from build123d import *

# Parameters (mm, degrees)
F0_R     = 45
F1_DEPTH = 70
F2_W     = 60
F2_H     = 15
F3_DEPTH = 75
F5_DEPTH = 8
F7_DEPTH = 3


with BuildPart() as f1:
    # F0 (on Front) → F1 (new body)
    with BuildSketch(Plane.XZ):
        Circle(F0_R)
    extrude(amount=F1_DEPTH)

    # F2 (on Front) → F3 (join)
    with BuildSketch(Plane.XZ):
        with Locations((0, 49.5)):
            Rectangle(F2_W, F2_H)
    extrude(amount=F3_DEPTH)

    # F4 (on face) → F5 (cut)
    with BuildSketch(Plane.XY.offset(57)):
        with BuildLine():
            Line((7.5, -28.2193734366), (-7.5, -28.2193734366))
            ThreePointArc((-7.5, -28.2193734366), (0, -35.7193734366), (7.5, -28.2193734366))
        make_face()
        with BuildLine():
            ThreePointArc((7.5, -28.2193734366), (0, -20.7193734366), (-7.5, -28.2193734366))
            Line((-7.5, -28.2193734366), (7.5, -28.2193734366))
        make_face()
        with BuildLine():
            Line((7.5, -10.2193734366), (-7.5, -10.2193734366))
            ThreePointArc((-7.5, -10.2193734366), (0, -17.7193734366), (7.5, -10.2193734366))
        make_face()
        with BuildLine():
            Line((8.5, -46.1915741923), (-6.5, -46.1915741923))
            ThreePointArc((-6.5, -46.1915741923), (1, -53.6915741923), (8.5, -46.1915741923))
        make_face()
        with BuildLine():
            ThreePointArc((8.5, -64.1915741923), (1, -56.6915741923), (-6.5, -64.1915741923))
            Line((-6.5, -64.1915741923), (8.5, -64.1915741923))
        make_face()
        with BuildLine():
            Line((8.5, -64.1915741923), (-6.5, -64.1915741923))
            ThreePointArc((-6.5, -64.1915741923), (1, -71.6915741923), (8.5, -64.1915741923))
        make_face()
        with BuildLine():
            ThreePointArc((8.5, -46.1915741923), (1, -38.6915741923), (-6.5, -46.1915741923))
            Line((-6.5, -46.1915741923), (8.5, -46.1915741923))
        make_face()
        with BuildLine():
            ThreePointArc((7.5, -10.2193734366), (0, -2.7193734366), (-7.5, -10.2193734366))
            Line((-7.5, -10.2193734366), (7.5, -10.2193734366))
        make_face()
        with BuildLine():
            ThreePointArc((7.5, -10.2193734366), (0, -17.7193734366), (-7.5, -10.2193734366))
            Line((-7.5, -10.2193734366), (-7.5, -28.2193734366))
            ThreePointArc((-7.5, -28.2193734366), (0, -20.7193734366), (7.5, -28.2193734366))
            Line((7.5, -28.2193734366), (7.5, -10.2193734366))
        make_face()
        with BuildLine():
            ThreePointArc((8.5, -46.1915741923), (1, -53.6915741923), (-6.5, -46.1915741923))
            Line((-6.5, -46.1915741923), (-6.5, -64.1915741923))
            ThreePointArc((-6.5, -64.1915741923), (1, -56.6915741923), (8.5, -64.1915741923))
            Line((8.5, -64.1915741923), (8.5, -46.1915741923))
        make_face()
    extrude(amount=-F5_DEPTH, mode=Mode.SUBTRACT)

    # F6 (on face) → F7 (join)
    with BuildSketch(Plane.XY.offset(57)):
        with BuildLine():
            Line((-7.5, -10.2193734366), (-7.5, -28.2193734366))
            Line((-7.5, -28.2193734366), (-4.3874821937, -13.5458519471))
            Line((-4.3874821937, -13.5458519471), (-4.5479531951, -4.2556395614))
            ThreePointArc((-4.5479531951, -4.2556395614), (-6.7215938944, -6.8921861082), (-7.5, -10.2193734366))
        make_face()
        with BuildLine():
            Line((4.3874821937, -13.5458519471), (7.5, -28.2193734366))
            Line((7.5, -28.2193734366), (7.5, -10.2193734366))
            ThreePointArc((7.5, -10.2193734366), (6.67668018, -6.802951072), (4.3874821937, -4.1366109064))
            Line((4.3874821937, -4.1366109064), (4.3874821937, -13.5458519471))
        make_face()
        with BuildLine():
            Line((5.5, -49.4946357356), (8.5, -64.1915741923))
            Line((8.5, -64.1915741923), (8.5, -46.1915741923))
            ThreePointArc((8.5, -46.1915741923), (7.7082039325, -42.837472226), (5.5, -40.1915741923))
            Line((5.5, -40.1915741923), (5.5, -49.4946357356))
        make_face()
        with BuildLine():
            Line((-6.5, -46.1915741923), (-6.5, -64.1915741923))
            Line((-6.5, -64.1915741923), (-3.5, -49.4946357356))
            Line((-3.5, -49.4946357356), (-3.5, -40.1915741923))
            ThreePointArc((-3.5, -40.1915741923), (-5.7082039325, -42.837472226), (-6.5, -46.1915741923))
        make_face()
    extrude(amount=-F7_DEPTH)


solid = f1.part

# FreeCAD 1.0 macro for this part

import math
import FreeCAD as App
import Part
import Sketcher


def add_polygon(sketch, points):
    """Adds a closed chain of lines whose ends are joined by coincident constraints."""
    first, n = sketch.GeometryCount, len(points)
    for a, b in zip(points, points[1:] + points[:1]):
        sketch.addGeometry(Part.LineSegment(App.Vector(*a, 0), App.Vector(*b, 0)), False)
    for i in range(n):
        sketch.addConstraint(Sketcher.Constraint("Coincident", first + i, 2, first + (i + 1) % n, 1))

doc = App.newDocument("Part")
body = doc.addObject("PartDesign::Body", "Body")

# Sketch on XZ plane
sketch1 = doc.addObject("Sketcher::SketchObject", "Sketch")
body.addObject(sketch1)
sketch1.AttachmentSupport = (doc.XZ_Plane, [""])
sketch1.MapMode = "FlatFace"
sketch1.addGeometry(Part.Circle(App.Vector(0, 0, 0), App.Vector(0, 0, 1), 45), False)
sketch1.addConstraint([
    Sketcher.Constraint("Coincident", 0, 3, -1, 1),
    Sketcher.Constraint("Diameter", 0, 90.0),
])
pad1 = doc.addObject("PartDesign::Pad", "Pad")
body.addObject(pad1)
pad1.Profile = sketch1
pad1.Length = 70

# Sketch on XZ plane
sketch2 = doc.addObject("Sketcher::SketchObject", "Sketch001")
body.addObject(sketch2)
sketch2.AttachmentSupport = (doc.XZ_Plane, [""])
sketch2.MapMode = "FlatFace"
add_polygon(sketch2, [(-30, 57), (-30, 42), (30, 42), (30, 57)])  # lines 0-3
sketch2.addConstraint([
    Sketcher.Constraint("Vertical", 0),
    Sketcher.Constraint("Horizontal", 1),
    Sketcher.Constraint("Vertical", 2),
    Sketcher.Constraint("Horizontal", 3),
    Sketcher.Constraint("DistanceX", 1, 1, 1, 2, 60.0),
    Sketcher.Constraint("DistanceY", 0, 2, 0, 1, 15.0),
    Sketcher.Constraint("DistanceX", 0, 2, -1, 1, 30.0),
    Sketcher.Constraint("DistanceY", -1, 1, 0, 2, 42.0),
])
pad2 = doc.addObject("PartDesign::Pad", "Pad001")
body.addObject(pad2)
pad2.Profile = sketch2
pad2.Length = 75

# Sketch on XY plane
sketch3 = doc.addObject("Sketcher::SketchObject", "Sketch002")
body.addObject(sketch3)
sketch3.AttachmentSupport = (doc.XY_Plane, [""])
sketch3.MapMode = "FlatFace"
sketch3.AttachmentOffset = App.Placement(App.Vector(0, 0, 57), App.Rotation())
sketch3.addGeometry([
    Part.ArcOfCircle(Part.Circle(App.Vector(0, -28, 0), App.Vector(0, 0, 1), 8), math.radians(180), math.radians(360)),  # 0
    Part.LineSegment(App.Vector(8, -28, 0), App.Vector(8, -10, 0)),  # 1
    Part.ArcOfCircle(Part.Circle(App.Vector(0, -10, 0), App.Vector(0, 0, 1), 8), math.radians(0), math.radians(180)),  # 2
    Part.LineSegment(App.Vector(-8, -10, 0), App.Vector(-8, -28, 0)),  # 3
    Part.ArcOfCircle(Part.Circle(App.Vector(1, -46, 0), App.Vector(0, 0, 1), 8), math.radians(0), math.radians(180)),  # 4
    Part.LineSegment(App.Vector(-6, -46, 0), App.Vector(-6, -64, 0)),  # 5
    Part.ArcOfCircle(Part.Circle(App.Vector(1, -64, 0), App.Vector(0, 0, 1), 8), math.radians(180), math.radians(360)),  # 6
    Part.LineSegment(App.Vector(8, -64, 0), App.Vector(8, -46, 0)),  # 7
], False)
sketch3.addConstraint([
    Sketcher.Constraint("Tangent", 0, 2, 1, 1),
    Sketcher.Constraint("Tangent", 1, 2, 2, 1),
    Sketcher.Constraint("Tangent", 2, 2, 3, 1),
    Sketcher.Constraint("Tangent", 3, 2, 0, 1),
    Sketcher.Constraint("Tangent", 4, 2, 5, 1),
    Sketcher.Constraint("Tangent", 5, 2, 6, 1),
    Sketcher.Constraint("Tangent", 6, 2, 7, 1),
    Sketcher.Constraint("Tangent", 7, 2, 4, 1),
    Sketcher.Constraint("Vertical", 1),
    Sketcher.Constraint("Vertical", 3),
    Sketcher.Constraint("Vertical", 5),
    Sketcher.Constraint("Vertical", 7),
    Sketcher.Constraint("Equal", 2, 4),
    Sketcher.Constraint("PointOnObject", 0, 3, -2),
    Sketcher.Constraint("Equal", 3, 5),
    Sketcher.Constraint("Radius", 0, 7.5),
    Sketcher.Constraint("DistanceY", 1, 1, 1, 2, 18.0),
    Sketcher.Constraint("DistanceX", -1, 1, 4, 3, 1.0),
    Sketcher.Constraint("DistanceY", 4, 3, 0, 3, 17.972201),
    Sketcher.Constraint("DistanceY", 0, 3, -1, 1, 28.219373),
])
pocket1 = doc.addObject("PartDesign::Pocket", "Pocket")
body.addObject(pocket1)
pocket1.Profile = sketch3
pocket1.Length = 8

# Sketch on XY plane
sketch4 = doc.addObject("Sketcher::SketchObject", "Sketch003")
body.addObject(sketch4)
sketch4.AttachmentSupport = (doc.XY_Plane, [""])
sketch4.MapMode = "FlatFace"
sketch4.AttachmentOffset = App.Placement(App.Vector(0, 0, 57), App.Rotation())
sketch4.addGeometry([
    Part.LineSegment(App.Vector(-8, -10, 0), App.Vector(-8, -28, 0)),  # 0
    Part.LineSegment(App.Vector(-8, -28, 0), App.Vector(-4, -14, 0)),  # 1
    Part.LineSegment(App.Vector(-4, -14, 0), App.Vector(-5, -4, 0)),  # 2
    Part.ArcOfCircle(Part.Circle(App.Vector(0, -10, 0), App.Vector(0, 0, 1), 8), math.radians(127), math.radians(180)),  # 3
    Part.LineSegment(App.Vector(4, -14, 0), App.Vector(8, -28, 0)),  # 4
    Part.LineSegment(App.Vector(8, -28, 0), App.Vector(8, -10, 0)),  # 5
    Part.ArcOfCircle(Part.Circle(App.Vector(0, -10, 0), App.Vector(0, 0, 1), 8), math.radians(0), math.radians(54)),  # 6
    Part.LineSegment(App.Vector(4, -4, 0), App.Vector(4, -14, 0)),  # 7
    Part.LineSegment(App.Vector(6, -49, 0), App.Vector(8, -64, 0)),  # 8
    Part.LineSegment(App.Vector(8, -64, 0), App.Vector(8, -46, 0)),  # 9
    Part.ArcOfCircle(Part.Circle(App.Vector(1, -46, 0), App.Vector(0, 0, 1), 8), math.radians(0), math.radians(53)),  # 10
    Part.LineSegment(App.Vector(6, -40, 0), App.Vector(6, -49, 0)),  # 11
    Part.LineSegment(App.Vector(-6, -46, 0), App.Vector(-6, -64, 0)),  # 12
    Part.LineSegment(App.Vector(-6, -64, 0), App.Vector(-4, -49, 0)),  # 13
    Part.LineSegment(App.Vector(-4, -49, 0), App.Vector(-4, -40, 0)),  # 14
    Part.ArcOfCircle(Part.Circle(App.Vector(1, -46, 0), App.Vector(0, 0, 1), 8), math.radians(127), math.radians(180)),  # 15
], False)
sketch4.addConstraint([
    Sketcher.Constraint("Coincident", 0, 2, 1, 1),
    Sketcher.Constraint("Coincident", 1, 2, 2, 1),
    Sketcher.Constraint("Coincident", 2, 2, 3, 1),
    Sketcher.Constraint("Tangent", 3, 2, 0, 1),
    Sketcher.Constraint("Coincident", 4, 2, 5, 1),
    Sketcher.Constraint("Tangent", 5, 2, 6, 1),
    Sketcher.Constraint("Coincident", 6, 2, 7, 1),
    Sketcher.Constraint("Coincident", 7, 2, 4, 1),
    Sketcher.Constraint("Coincident", 8, 2, 9, 1),
    Sketcher.Constraint("Tangent", 9, 2, 10, 1),
    Sketcher.Constraint("Coincident", 10, 2, 11, 1),
    Sketcher.Constraint("Coincident", 11, 2, 8, 1),
    Sketcher.Constraint("Coincident", 12, 2, 13, 1),
    Sketcher.Constraint("Coincident", 13, 2, 14, 1),
    Sketcher.Constraint("Coincident", 14, 2, 15, 1),
    Sketcher.Constraint("Tangent", 15, 2, 12, 1),
    Sketcher.Constraint("Vertical", 0),
    Sketcher.Constraint("Vertical", 5),
    Sketcher.Constraint("Vertical", 7),
    Sketcher.Constraint("Vertical", 9),
    Sketcher.Constraint("Vertical", 11),
    Sketcher.Constraint("Vertical", 12),
    Sketcher.Constraint("Vertical", 14),
    Sketcher.Constraint("Coincident", 6, 3, 3, 3),
    Sketcher.Constraint("Coincident", 15, 3, 10, 3),
    Sketcher.Constraint("Equal", 3, 6),
    Sketcher.Constraint("Equal", 6, 10),
    Sketcher.Constraint("Equal", 10, 15),
    Sketcher.Constraint("Symmetric", 0, 2, 4, 2, -2),
    Sketcher.Constraint("Symmetric", 1, 2, 7, 2, -2),
    Sketcher.Constraint("Horizontal", 8, 2, 12, 2),
    Sketcher.Constraint("Horizontal", 11, 2, 13, 2),
    Sketcher.Constraint("Horizontal", 10, 2, 14, 2),
    Sketcher.Constraint("Equal", 5, 9),
    Sketcher.Constraint("Equal", 4, 8),
    Sketcher.Constraint("Radius", 3, 7.5),
    Sketcher.Constraint("DistanceY", 0, 2, 0, 1, 18.0),
    Sketcher.Constraint("Distance", 1, 15.0),
    Sketcher.Constraint("DistanceX", -1, 1, 10, 3, 1.0),
    Sketcher.Constraint("DistanceX", 10, 2, 9, 2, 3.0),
    Sketcher.Constraint("Distance", 2, 9.291598),
    Sketcher.Constraint("DistanceY", 7, 2, 7, 1, 9.409241),
    Sketcher.Constraint("DistanceY", 10, 3, 3, 3, 35.972201),
    Sketcher.Constraint("DistanceY", 1, 2, -1, 1, 13.545852),
])
pad3 = doc.addObject("PartDesign::Pad", "Pad002")
body.addObject(pad3)
pad3.Profile = sketch4
pad3.Length = 3
pad3.Reversed = True

doc.recompute()
